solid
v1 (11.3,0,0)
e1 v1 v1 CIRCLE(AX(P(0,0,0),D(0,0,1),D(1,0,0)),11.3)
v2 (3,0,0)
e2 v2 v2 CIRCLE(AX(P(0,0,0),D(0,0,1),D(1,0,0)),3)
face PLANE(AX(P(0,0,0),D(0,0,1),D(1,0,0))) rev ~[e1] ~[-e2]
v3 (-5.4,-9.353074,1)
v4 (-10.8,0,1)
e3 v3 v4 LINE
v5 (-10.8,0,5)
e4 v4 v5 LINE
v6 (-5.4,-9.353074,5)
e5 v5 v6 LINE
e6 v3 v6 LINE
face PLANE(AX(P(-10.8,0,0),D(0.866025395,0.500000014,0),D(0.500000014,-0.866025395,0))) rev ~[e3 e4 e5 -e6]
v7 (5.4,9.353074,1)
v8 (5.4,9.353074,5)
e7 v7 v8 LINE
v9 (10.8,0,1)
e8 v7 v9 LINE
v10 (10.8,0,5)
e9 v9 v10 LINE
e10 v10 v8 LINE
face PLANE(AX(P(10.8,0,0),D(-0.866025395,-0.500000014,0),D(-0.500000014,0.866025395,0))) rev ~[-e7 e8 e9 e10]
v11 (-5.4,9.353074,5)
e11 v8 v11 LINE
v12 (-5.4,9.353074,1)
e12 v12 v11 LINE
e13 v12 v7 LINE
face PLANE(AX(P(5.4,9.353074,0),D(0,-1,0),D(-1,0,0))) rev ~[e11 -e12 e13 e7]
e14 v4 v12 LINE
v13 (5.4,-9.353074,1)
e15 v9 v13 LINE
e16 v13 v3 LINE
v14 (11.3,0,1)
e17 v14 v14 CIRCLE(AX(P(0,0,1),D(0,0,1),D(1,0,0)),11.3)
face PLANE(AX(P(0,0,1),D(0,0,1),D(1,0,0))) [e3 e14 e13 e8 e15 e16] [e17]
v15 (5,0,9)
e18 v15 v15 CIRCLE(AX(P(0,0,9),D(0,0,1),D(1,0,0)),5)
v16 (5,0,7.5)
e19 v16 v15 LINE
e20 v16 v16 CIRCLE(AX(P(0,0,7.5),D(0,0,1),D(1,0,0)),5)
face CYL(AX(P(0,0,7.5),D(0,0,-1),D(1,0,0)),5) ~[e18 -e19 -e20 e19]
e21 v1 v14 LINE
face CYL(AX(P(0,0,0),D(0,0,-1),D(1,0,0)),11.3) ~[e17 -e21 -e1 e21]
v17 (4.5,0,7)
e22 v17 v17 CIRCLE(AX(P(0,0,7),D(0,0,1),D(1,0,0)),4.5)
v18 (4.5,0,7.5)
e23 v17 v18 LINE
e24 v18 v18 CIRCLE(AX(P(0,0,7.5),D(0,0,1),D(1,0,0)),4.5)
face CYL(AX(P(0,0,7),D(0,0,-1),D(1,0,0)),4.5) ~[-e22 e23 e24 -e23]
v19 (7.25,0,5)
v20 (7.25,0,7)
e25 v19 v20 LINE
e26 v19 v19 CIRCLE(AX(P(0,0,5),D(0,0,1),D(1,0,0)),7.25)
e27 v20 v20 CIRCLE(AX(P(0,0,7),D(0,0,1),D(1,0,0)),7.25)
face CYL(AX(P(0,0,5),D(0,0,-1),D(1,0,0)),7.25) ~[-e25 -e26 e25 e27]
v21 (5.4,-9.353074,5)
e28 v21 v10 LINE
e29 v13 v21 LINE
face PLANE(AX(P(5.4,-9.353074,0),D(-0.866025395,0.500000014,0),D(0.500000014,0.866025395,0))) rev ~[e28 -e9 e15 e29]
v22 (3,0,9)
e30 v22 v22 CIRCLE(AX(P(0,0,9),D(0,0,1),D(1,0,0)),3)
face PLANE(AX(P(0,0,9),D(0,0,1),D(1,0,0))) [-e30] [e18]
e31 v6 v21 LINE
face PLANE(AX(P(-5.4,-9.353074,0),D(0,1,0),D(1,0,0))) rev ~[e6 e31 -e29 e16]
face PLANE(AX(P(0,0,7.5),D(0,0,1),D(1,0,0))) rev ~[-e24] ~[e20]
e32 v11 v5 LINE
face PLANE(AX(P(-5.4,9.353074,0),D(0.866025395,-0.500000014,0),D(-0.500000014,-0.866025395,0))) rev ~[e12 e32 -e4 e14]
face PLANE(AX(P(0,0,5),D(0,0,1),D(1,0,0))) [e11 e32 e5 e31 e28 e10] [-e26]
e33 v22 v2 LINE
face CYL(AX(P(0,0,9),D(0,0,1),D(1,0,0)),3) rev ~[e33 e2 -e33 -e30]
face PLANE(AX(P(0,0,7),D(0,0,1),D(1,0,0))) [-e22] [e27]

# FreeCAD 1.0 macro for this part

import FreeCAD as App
import Part
import Sketcher

V = App.Vector
Q = App.Units.Quantity


def add_polygon(sketch, points):
    """Adds a closed chain of lines whose ends are joined by coincident constraints."""
    first, n = sketch.GeometryCount, len(points)
    for a, b in zip(points, points[1:] + points[:1]):
        sketch.addGeometry(Part.LineSegment(App.Vector(*a, 0), App.Vector(*b, 0)), False)
    for i in range(n):
        sketch.addConstraint(Sketcher.Constraint("Coincident", first + i, 2, first + (i + 1) % n, 1))

doc = App.newDocument("Part")
body = doc.addObject("PartDesign::Body", "Body")

# Sketch on XY plane
sketch1 = doc.addObject("Sketcher::SketchObject", "Sketch")
body.addObject(sketch1)
sketch1.AttachmentSupport = (doc.XY_Plane, [""])
sketch1.MapMode = "FlatFace"
sketch1.addGeometry(Part.Circle(V(0, 0, 0), V(0, 0, 1), 11), False)
sketch1.addConstraint([
    Sketcher.Constraint("Coincident", 0, 3, -1, 1),
    Sketcher.Constraint("Diameter", 0, 22.6),
])
pad1 = doc.addObject("PartDesign::Pad", "Pad")
body.addObject(pad1)
pad1.Profile = sketch1
pad1.Length = 1

# Sketch on XY plane
sketch2 = doc.addObject("Sketcher::SketchObject", "Sketch001")
body.addObject(sketch2)
sketch2.AttachmentSupport = (doc.XY_Plane, [""])
sketch2.MapMode = "FlatFace"
add_polygon(sketch2, [(-5, -9), (5, -9), (11, 0), (5, 9), (-5, 9), (-11, 0)])  # lines 0-5
sketch2.addConstraint([
    Sketcher.Constraint("Horizontal", 0),
    Sketcher.Constraint("Horizontal", 3),
    Sketcher.Constraint("Symmetric", 0, 2, 3, 2, -1, 1),
    Sketcher.Constraint("Symmetric", 1, 2, 4, 2, -1, 1),
    Sketcher.Constraint("PointOnObject", 1, 2, -1),
    Sketcher.Constraint("Parallel", 2, 5),
    Sketcher.Constraint("Vertical", 0, 2, 2, 2),
    Sketcher.Constraint("Angle", 1, Q("59.999999 deg")),
    Sketcher.Constraint("DistanceX", 0, 1, 0, 2, 10.8),
    Sketcher.Constraint("Distance", 1, 10.8),
])
pad2 = doc.addObject("PartDesign::Pad", "Pad001")
body.addObject(pad2)
pad2.Profile = sketch2
pad2.Length = 5

# Sketch on XY plane
sketch3 = doc.addObject("Sketcher::SketchObject", "Sketch002")
body.addObject(sketch3)
sketch3.AttachmentSupport = (doc.XY_Plane, [""])
sketch3.MapMode = "FlatFace"
sketch3.AttachmentOffset = App.Placement(V(0, 0, 5), App.Rotation())
sketch3.addGeometry(Part.Circle(V(0, 0, 0), V(0, 0, 1), 7), False)
sketch3.addConstraint([
    Sketcher.Constraint("Coincident", 0, 3, -1, 1),
    Sketcher.Constraint("Diameter", 0, 14.5),
])
pad3 = doc.addObject("PartDesign::Pad", "Pad002")
body.addObject(pad3)
pad3.Profile = sketch3
pad3.Length = 2

# Sketch on XY plane
sketch4 = doc.addObject("Sketcher::SketchObject", "Sketch003")
body.addObject(sketch4)
sketch4.AttachmentSupport = (doc.XY_Plane, [""])
sketch4.MapMode = "FlatFace"
sketch4.AttachmentOffset = App.Placement(V(0, 0, 7), App.Rotation())
sketch4.addGeometry(Part.Circle(V(0, 0, 0), V(0, 0, 1), 4.5), False)
sketch4.addConstraint([
    Sketcher.Constraint("Coincident", 0, 3, -1, 1),
    Sketcher.Constraint("Diameter", 0, 9.0),
])
pad4 = doc.addObject("PartDesign::Pad", "Pad003")
body.addObject(pad4)
pad4.Profile = sketch4
pad4.Length = 0.5

# Sketch on XY plane
sketch5 = doc.addObject("Sketcher::SketchObject", "Sketch004")
body.addObject(sketch5)
sketch5.AttachmentSupport = (doc.XY_Plane, [""])
sketch5.MapMode = "FlatFace"
sketch5.AttachmentOffset = App.Placement(V(0, 0, 7.5), App.Rotation())
sketch5.addGeometry(Part.Circle(V(0, 0, 0), V(0, 0, 1), 5), False)
sketch5.addConstraint([
    Sketcher.Constraint("Coincident", 0, 3, -1, 1),
    Sketcher.Constraint("Diameter", 0, 10.0),
])
pad5 = doc.addObject("PartDesign::Pad", "Pad004")
body.addObject(pad5)
pad5.Profile = sketch5
pad5.Length = 1.5

# Sketch on XY plane
sketch6 = doc.addObject("Sketcher::SketchObject", "Sketch005")
body.addObject(sketch6)
sketch6.AttachmentSupport = (doc.XY_Plane, [""])
sketch6.MapMode = "FlatFace"
sketch6.AttachmentOffset = App.Placement(V(0, 0, 9), App.Rotation())
sketch6.addGeometry(Part.Circle(V(0, 0, 0), V(0, 0, 1), 3), False)
sketch6.addConstraint([
    Sketcher.Constraint("Coincident", 0, 3, -1, 1),
    Sketcher.Constraint("Diameter", 0, 6.0),
])
pocket1 = doc.addObject("PartDesign::Pocket", "Pocket")
body.addObject(pocket1)
pocket1.Profile = sketch6
pocket1.Length = 13.7

doc.recompute()
